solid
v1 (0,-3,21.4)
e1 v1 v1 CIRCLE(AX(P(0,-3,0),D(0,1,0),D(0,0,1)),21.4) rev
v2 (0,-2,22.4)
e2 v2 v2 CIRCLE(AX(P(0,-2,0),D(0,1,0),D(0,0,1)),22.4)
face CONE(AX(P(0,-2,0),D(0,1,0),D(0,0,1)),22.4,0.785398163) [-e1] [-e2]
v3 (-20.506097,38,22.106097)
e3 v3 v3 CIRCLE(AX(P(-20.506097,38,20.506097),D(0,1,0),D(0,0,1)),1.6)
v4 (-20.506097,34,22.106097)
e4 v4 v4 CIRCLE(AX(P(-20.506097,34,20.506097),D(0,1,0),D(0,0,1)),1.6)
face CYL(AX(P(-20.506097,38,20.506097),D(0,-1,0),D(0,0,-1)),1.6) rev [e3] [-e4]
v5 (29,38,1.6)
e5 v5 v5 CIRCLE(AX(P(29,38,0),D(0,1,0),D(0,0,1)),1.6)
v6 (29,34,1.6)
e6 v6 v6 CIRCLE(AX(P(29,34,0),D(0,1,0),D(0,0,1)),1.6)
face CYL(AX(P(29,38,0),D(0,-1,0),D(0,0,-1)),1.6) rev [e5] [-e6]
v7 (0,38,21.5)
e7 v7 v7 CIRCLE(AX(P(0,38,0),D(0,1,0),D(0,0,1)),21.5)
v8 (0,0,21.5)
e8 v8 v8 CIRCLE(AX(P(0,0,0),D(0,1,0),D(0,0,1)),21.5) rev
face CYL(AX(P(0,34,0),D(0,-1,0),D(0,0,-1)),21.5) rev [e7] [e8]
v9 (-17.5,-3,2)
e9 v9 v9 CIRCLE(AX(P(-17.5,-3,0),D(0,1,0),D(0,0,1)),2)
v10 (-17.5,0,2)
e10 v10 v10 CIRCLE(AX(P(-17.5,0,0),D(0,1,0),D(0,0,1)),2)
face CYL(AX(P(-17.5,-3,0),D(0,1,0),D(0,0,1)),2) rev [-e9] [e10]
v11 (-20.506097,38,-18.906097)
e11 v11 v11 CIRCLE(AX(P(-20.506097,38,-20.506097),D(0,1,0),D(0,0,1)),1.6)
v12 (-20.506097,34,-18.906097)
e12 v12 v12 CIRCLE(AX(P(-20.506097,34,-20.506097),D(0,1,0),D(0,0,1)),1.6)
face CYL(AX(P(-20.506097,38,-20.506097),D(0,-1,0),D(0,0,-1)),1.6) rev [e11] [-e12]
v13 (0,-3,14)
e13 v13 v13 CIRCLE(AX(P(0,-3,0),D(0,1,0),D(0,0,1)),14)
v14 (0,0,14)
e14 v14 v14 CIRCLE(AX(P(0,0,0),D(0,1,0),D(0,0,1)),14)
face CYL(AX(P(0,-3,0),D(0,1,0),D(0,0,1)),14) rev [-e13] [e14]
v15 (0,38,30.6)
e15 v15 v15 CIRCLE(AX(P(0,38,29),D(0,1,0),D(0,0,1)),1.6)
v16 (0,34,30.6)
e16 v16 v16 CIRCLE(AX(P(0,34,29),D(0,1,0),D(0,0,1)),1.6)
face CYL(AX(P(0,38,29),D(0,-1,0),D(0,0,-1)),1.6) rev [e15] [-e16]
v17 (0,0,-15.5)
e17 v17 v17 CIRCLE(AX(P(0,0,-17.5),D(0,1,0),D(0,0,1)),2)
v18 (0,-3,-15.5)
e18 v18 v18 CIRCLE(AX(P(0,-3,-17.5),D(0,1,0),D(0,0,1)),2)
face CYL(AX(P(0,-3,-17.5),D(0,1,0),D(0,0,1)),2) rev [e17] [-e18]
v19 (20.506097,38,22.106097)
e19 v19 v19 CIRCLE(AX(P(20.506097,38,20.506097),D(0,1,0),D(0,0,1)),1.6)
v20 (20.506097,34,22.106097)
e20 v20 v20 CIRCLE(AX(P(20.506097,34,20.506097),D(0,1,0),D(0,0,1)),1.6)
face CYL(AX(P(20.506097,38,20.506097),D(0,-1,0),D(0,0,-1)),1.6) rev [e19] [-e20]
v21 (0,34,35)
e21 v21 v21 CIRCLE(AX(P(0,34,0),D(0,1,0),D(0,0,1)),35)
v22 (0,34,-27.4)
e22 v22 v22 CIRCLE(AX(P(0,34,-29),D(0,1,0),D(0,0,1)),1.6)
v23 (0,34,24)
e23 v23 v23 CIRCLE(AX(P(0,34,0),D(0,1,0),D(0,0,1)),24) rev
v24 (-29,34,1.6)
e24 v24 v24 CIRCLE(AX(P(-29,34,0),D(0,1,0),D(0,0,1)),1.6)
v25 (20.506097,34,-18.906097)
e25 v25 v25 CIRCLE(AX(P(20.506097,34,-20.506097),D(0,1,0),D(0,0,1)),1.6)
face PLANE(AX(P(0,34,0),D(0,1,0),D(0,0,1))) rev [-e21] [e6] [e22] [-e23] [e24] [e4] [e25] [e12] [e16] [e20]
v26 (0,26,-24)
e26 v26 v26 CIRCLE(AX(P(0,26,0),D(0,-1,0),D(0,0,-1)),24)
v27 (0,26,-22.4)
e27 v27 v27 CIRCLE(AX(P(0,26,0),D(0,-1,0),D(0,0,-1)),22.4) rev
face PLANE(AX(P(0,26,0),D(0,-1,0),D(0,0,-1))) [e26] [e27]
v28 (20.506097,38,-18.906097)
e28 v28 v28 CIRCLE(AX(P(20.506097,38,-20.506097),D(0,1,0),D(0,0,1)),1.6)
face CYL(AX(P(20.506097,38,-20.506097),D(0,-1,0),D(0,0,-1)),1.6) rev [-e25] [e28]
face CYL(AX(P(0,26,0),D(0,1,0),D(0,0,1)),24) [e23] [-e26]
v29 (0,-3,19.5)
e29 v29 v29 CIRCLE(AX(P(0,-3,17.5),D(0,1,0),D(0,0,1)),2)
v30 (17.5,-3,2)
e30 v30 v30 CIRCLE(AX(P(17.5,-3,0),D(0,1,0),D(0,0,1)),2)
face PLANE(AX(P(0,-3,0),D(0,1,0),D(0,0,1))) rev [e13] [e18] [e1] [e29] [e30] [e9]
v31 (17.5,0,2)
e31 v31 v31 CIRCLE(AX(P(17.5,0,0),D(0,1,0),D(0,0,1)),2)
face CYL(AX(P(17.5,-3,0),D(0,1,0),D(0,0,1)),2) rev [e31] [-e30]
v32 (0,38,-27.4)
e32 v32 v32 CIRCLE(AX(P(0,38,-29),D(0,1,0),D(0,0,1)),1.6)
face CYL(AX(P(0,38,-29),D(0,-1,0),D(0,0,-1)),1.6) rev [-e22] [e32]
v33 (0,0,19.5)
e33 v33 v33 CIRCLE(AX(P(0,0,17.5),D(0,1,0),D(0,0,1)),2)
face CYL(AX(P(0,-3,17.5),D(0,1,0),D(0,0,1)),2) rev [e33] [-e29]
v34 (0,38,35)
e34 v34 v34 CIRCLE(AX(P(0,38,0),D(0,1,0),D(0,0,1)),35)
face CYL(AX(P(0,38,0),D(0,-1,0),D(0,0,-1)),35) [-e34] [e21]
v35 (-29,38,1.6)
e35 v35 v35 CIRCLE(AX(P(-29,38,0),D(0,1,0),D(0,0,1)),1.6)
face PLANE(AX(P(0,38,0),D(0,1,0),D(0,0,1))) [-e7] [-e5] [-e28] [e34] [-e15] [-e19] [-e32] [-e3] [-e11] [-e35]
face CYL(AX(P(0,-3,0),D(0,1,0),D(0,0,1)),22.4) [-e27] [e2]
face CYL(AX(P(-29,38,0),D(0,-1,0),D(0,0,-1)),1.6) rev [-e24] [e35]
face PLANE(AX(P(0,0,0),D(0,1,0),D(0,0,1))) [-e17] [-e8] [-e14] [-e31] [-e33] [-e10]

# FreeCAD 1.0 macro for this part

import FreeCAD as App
import Part
import Sketcher
Q = App.Units.Quantity


def edges_at(feature, points):
    """Names of the edges that pass closest to the given points."""
    edges = feature.Shape.Edges
    near = lambda p: min(range(len(edges)), key=lambda i: edges[i].distToShape(Part.Vertex(*p))[0])
    return sorted({f"Edge{near(p) + 1}" for p in points})

doc = App.newDocument("Part")
body = doc.addObject("PartDesign::Body", "Body")

# Sketch on XZ plane
sketch1 = body.newObject("Sketcher::SketchObject", "Sketch")
sketch1.AttachmentSupport = (doc.getObject("XZ_Plane"), [""])
sketch1.MapMode = "FlatFace"
sketch1.addGeometry([
    Part.Circle(App.Vector(0, 0, 0), App.Vector(0, 0, 1), 22.4),  # 0
    Part.Circle(App.Vector(0, -17.5, 0), App.Vector(0, 0, 1), 2),  # 1
    Part.Circle(App.Vector(-17.5, 0, 0), App.Vector(0, 0, 1), 2),  # 2
    Part.Circle(App.Vector(17.5, 0, 0), App.Vector(0, 0, 1), 2),  # 3
    Part.Circle(App.Vector(0, 0, 0), App.Vector(0, 0, 1), 14),  # 4
    Part.Circle(App.Vector(0, 17.5, 0), App.Vector(0, 0, 1), 2),  # 5
], False)
sketch1.addConstraint([
    Sketcher.Constraint("Coincident", 0, 3, -1, 1),
    Sketcher.Constraint("Coincident", 4, 3, -1, 1),
    Sketcher.Constraint("Equal", 1, 2),
    Sketcher.Constraint("Equal", 2, 3),
    Sketcher.Constraint("Equal", 3, 5),
    Sketcher.Constraint("Symmetric", 2, 3, 3, 3, -1, 1),
    Sketcher.Constraint("Symmetric", 1, 3, 5, 3, -1, 1),
    Sketcher.Constraint("PointOnObject", 1, 3, -2),
    Sketcher.Constraint("PointOnObject", 2, 3, -1),
    Sketcher.Constraint("Diameter", 1, Q("4 mm")),
    Sketcher.Constraint("Diameter", 4, Q("28 mm")),
    Sketcher.Constraint("Diameter", 0, Q("44.8 mm")),
    Sketcher.Constraint("DistanceX", 2, 3, 3, 3, Q("35 mm")),
    Sketcher.Constraint("DistanceY", 1, 3, 5, 3, Q("35 mm")),
])
pad1 = body.newObject("PartDesign::Pad", "Pad")
pad1.Profile = sketch1
pad1.Length = 3

# Sketch on XZ plane
sketch2 = body.newObject("Sketcher::SketchObject", "Sketch001")
sketch2.AttachmentSupport = (doc.getObject("XZ_Plane"), [""])
sketch2.MapMode = "FlatFace"
sketch2.AttachmentOffset = App.Placement(App.Vector(0, 0, -34), App.Rotation())
sketch2.addGeometry([
    Part.Circle(App.Vector(0, 0, 0), App.Vector(0, 0, 1), 22.4),
    Part.Circle(App.Vector(0, 0, 0), App.Vector(0, 0, 1), 21.5),
], False)
sketch2.addConstraint([
    Sketcher.Constraint("Coincident", 0, 3, -1, 1),
    Sketcher.Constraint("Coincident", 1, 3, -1, 1),
    Sketcher.Constraint("Diameter", 1, Q("43 mm")),
    Sketcher.Constraint("Diameter", 0, Q("44.8 mm")),
])
pad2 = body.newObject("PartDesign::Pad", "Pad001")
pad2.Profile = sketch2
pad2.Length = 34

# Sketch on XZ plane
sketch3 = body.newObject("Sketcher::SketchObject", "Sketch002")
sketch3.AttachmentSupport = (doc.getObject("XZ_Plane"), [""])
sketch3.MapMode = "FlatFace"
sketch3.AttachmentOffset = App.Placement(App.Vector(0, 0, -38), App.Rotation())
sketch3.addGeometry([
    Part.Circle(App.Vector(0, 0, 0), App.Vector(0, 0, 1), 35),  # 0
    Part.Circle(App.Vector(-20.506097, -20.506097, 0), App.Vector(0, 0, 1), 1.6),  # 1
    Part.Circle(App.Vector(-29, 0, 0), App.Vector(0, 0, 1), 1.6),  # 2
    Part.Circle(App.Vector(-20.506097, 20.506097, 0), App.Vector(0, 0, 1), 1.6),  # 3
    Part.Circle(App.Vector(0, -29, 0), App.Vector(0, 0, 1), 1.6),  # 4
    Part.Circle(App.Vector(20.506097, -20.506097, 0), App.Vector(0, 0, 1), 1.6),  # 5
    Part.Circle(App.Vector(0, 0, 0), App.Vector(0, 0, 1), 21.5),  # 6
    Part.Circle(App.Vector(0, 29, 0), App.Vector(0, 0, 1), 1.6),  # 7
    Part.Circle(App.Vector(29, 0, 0), App.Vector(0, 0, 1), 1.6),  # 8
    Part.Circle(App.Vector(20.506097, 20.506097, 0), App.Vector(0, 0, 1), 1.6),  # 9
], False)
sketch3.addConstraint([
    Sketcher.Constraint("Coincident", 0, 3, -1, 1),
    Sketcher.Constraint("Coincident", 6, 3, -1, 1),
    Sketcher.Constraint("Equal", 1, 2),
    Sketcher.Constraint("Equal", 2, 3),
    Sketcher.Constraint("Equal", 3, 4),
    Sketcher.Constraint("Equal", 4, 5),
    Sketcher.Constraint("Equal", 5, 7),
    Sketcher.Constraint("Equal", 7, 8),
    Sketcher.Constraint("Equal", 8, 9),
    Sketcher.Constraint("Symmetric", 3, 3, 5, 3, -1, 1),
    Sketcher.Constraint("Symmetric", 4, 3, 7, 3, -1, 1),
    Sketcher.Constraint("Symmetric", 2, 3, 8, 3, -1, 1),
    Sketcher.Constraint("Symmetric", 1, 3, 9, 3, -1, 1),
    Sketcher.Constraint("Symmetric", 1, 3, 5, 3, -2),
    Sketcher.Constraint("PointOnObject", 2, 3, -1),
    Sketcher.Constraint("PointOnObject", 4, 3, -2),
    Sketcher.Constraint("Diameter", 0, Q("70 mm")),
    Sketcher.Constraint("Diameter", 6, Q("43 mm")),
    Sketcher.Constraint("Diameter", 1, Q("3.2 mm")),
    Sketcher.Constraint("DistanceX", 2, 3, -1, 1, Q("29 mm")),
    Sketcher.Constraint("DistanceY", 4, 3, -1, 1, Q("29 mm")),
    Sketcher.Constraint("DistanceX", 1, 3, -1, 1, Q("20.506097 mm")),
    Sketcher.Constraint("DistanceY", 1, 3, -1, 1, Q("20.506097 mm")),
])
pad3 = body.newObject("PartDesign::Pad", "Pad002")
pad3.Profile = sketch3
pad3.Length = 4

# Sketch on XZ plane
sketch4 = body.newObject("Sketcher::SketchObject", "Sketch003")
sketch4.AttachmentSupport = (doc.getObject("XZ_Plane"), [""])
sketch4.MapMode = "FlatFace"
sketch4.AttachmentOffset = App.Placement(App.Vector(0, 0, -34), App.Rotation())
sketch4.addGeometry([
    Part.Circle(App.Vector(0, 0, 0), App.Vector(0, 0, 1), 24),
    Part.Circle(App.Vector(0, 0, 0), App.Vector(0, 0, 1), 22.4),
], False)
sketch4.addConstraint([
    Sketcher.Constraint("Coincident", 0, 3, -1, 1),
    Sketcher.Constraint("Coincident", 1, 3, -1, 1),
    Sketcher.Constraint("Diameter", 0, Q("48 mm")),
    Sketcher.Constraint("Diameter", 1, Q("44.8 mm")),
])
pad4 = body.newObject("PartDesign::Pad", "Pad003")
pad4.Profile = sketch4
pad4.Length = 8
doc.recompute()

chamfer = body.newObject("PartDesign::Chamfer", "Chamfer")
chamfer.Base = (pad4, edges_at(pad4, [(0, -3, -22.4)]))
chamfer.Size = 1

doc.recompute()
